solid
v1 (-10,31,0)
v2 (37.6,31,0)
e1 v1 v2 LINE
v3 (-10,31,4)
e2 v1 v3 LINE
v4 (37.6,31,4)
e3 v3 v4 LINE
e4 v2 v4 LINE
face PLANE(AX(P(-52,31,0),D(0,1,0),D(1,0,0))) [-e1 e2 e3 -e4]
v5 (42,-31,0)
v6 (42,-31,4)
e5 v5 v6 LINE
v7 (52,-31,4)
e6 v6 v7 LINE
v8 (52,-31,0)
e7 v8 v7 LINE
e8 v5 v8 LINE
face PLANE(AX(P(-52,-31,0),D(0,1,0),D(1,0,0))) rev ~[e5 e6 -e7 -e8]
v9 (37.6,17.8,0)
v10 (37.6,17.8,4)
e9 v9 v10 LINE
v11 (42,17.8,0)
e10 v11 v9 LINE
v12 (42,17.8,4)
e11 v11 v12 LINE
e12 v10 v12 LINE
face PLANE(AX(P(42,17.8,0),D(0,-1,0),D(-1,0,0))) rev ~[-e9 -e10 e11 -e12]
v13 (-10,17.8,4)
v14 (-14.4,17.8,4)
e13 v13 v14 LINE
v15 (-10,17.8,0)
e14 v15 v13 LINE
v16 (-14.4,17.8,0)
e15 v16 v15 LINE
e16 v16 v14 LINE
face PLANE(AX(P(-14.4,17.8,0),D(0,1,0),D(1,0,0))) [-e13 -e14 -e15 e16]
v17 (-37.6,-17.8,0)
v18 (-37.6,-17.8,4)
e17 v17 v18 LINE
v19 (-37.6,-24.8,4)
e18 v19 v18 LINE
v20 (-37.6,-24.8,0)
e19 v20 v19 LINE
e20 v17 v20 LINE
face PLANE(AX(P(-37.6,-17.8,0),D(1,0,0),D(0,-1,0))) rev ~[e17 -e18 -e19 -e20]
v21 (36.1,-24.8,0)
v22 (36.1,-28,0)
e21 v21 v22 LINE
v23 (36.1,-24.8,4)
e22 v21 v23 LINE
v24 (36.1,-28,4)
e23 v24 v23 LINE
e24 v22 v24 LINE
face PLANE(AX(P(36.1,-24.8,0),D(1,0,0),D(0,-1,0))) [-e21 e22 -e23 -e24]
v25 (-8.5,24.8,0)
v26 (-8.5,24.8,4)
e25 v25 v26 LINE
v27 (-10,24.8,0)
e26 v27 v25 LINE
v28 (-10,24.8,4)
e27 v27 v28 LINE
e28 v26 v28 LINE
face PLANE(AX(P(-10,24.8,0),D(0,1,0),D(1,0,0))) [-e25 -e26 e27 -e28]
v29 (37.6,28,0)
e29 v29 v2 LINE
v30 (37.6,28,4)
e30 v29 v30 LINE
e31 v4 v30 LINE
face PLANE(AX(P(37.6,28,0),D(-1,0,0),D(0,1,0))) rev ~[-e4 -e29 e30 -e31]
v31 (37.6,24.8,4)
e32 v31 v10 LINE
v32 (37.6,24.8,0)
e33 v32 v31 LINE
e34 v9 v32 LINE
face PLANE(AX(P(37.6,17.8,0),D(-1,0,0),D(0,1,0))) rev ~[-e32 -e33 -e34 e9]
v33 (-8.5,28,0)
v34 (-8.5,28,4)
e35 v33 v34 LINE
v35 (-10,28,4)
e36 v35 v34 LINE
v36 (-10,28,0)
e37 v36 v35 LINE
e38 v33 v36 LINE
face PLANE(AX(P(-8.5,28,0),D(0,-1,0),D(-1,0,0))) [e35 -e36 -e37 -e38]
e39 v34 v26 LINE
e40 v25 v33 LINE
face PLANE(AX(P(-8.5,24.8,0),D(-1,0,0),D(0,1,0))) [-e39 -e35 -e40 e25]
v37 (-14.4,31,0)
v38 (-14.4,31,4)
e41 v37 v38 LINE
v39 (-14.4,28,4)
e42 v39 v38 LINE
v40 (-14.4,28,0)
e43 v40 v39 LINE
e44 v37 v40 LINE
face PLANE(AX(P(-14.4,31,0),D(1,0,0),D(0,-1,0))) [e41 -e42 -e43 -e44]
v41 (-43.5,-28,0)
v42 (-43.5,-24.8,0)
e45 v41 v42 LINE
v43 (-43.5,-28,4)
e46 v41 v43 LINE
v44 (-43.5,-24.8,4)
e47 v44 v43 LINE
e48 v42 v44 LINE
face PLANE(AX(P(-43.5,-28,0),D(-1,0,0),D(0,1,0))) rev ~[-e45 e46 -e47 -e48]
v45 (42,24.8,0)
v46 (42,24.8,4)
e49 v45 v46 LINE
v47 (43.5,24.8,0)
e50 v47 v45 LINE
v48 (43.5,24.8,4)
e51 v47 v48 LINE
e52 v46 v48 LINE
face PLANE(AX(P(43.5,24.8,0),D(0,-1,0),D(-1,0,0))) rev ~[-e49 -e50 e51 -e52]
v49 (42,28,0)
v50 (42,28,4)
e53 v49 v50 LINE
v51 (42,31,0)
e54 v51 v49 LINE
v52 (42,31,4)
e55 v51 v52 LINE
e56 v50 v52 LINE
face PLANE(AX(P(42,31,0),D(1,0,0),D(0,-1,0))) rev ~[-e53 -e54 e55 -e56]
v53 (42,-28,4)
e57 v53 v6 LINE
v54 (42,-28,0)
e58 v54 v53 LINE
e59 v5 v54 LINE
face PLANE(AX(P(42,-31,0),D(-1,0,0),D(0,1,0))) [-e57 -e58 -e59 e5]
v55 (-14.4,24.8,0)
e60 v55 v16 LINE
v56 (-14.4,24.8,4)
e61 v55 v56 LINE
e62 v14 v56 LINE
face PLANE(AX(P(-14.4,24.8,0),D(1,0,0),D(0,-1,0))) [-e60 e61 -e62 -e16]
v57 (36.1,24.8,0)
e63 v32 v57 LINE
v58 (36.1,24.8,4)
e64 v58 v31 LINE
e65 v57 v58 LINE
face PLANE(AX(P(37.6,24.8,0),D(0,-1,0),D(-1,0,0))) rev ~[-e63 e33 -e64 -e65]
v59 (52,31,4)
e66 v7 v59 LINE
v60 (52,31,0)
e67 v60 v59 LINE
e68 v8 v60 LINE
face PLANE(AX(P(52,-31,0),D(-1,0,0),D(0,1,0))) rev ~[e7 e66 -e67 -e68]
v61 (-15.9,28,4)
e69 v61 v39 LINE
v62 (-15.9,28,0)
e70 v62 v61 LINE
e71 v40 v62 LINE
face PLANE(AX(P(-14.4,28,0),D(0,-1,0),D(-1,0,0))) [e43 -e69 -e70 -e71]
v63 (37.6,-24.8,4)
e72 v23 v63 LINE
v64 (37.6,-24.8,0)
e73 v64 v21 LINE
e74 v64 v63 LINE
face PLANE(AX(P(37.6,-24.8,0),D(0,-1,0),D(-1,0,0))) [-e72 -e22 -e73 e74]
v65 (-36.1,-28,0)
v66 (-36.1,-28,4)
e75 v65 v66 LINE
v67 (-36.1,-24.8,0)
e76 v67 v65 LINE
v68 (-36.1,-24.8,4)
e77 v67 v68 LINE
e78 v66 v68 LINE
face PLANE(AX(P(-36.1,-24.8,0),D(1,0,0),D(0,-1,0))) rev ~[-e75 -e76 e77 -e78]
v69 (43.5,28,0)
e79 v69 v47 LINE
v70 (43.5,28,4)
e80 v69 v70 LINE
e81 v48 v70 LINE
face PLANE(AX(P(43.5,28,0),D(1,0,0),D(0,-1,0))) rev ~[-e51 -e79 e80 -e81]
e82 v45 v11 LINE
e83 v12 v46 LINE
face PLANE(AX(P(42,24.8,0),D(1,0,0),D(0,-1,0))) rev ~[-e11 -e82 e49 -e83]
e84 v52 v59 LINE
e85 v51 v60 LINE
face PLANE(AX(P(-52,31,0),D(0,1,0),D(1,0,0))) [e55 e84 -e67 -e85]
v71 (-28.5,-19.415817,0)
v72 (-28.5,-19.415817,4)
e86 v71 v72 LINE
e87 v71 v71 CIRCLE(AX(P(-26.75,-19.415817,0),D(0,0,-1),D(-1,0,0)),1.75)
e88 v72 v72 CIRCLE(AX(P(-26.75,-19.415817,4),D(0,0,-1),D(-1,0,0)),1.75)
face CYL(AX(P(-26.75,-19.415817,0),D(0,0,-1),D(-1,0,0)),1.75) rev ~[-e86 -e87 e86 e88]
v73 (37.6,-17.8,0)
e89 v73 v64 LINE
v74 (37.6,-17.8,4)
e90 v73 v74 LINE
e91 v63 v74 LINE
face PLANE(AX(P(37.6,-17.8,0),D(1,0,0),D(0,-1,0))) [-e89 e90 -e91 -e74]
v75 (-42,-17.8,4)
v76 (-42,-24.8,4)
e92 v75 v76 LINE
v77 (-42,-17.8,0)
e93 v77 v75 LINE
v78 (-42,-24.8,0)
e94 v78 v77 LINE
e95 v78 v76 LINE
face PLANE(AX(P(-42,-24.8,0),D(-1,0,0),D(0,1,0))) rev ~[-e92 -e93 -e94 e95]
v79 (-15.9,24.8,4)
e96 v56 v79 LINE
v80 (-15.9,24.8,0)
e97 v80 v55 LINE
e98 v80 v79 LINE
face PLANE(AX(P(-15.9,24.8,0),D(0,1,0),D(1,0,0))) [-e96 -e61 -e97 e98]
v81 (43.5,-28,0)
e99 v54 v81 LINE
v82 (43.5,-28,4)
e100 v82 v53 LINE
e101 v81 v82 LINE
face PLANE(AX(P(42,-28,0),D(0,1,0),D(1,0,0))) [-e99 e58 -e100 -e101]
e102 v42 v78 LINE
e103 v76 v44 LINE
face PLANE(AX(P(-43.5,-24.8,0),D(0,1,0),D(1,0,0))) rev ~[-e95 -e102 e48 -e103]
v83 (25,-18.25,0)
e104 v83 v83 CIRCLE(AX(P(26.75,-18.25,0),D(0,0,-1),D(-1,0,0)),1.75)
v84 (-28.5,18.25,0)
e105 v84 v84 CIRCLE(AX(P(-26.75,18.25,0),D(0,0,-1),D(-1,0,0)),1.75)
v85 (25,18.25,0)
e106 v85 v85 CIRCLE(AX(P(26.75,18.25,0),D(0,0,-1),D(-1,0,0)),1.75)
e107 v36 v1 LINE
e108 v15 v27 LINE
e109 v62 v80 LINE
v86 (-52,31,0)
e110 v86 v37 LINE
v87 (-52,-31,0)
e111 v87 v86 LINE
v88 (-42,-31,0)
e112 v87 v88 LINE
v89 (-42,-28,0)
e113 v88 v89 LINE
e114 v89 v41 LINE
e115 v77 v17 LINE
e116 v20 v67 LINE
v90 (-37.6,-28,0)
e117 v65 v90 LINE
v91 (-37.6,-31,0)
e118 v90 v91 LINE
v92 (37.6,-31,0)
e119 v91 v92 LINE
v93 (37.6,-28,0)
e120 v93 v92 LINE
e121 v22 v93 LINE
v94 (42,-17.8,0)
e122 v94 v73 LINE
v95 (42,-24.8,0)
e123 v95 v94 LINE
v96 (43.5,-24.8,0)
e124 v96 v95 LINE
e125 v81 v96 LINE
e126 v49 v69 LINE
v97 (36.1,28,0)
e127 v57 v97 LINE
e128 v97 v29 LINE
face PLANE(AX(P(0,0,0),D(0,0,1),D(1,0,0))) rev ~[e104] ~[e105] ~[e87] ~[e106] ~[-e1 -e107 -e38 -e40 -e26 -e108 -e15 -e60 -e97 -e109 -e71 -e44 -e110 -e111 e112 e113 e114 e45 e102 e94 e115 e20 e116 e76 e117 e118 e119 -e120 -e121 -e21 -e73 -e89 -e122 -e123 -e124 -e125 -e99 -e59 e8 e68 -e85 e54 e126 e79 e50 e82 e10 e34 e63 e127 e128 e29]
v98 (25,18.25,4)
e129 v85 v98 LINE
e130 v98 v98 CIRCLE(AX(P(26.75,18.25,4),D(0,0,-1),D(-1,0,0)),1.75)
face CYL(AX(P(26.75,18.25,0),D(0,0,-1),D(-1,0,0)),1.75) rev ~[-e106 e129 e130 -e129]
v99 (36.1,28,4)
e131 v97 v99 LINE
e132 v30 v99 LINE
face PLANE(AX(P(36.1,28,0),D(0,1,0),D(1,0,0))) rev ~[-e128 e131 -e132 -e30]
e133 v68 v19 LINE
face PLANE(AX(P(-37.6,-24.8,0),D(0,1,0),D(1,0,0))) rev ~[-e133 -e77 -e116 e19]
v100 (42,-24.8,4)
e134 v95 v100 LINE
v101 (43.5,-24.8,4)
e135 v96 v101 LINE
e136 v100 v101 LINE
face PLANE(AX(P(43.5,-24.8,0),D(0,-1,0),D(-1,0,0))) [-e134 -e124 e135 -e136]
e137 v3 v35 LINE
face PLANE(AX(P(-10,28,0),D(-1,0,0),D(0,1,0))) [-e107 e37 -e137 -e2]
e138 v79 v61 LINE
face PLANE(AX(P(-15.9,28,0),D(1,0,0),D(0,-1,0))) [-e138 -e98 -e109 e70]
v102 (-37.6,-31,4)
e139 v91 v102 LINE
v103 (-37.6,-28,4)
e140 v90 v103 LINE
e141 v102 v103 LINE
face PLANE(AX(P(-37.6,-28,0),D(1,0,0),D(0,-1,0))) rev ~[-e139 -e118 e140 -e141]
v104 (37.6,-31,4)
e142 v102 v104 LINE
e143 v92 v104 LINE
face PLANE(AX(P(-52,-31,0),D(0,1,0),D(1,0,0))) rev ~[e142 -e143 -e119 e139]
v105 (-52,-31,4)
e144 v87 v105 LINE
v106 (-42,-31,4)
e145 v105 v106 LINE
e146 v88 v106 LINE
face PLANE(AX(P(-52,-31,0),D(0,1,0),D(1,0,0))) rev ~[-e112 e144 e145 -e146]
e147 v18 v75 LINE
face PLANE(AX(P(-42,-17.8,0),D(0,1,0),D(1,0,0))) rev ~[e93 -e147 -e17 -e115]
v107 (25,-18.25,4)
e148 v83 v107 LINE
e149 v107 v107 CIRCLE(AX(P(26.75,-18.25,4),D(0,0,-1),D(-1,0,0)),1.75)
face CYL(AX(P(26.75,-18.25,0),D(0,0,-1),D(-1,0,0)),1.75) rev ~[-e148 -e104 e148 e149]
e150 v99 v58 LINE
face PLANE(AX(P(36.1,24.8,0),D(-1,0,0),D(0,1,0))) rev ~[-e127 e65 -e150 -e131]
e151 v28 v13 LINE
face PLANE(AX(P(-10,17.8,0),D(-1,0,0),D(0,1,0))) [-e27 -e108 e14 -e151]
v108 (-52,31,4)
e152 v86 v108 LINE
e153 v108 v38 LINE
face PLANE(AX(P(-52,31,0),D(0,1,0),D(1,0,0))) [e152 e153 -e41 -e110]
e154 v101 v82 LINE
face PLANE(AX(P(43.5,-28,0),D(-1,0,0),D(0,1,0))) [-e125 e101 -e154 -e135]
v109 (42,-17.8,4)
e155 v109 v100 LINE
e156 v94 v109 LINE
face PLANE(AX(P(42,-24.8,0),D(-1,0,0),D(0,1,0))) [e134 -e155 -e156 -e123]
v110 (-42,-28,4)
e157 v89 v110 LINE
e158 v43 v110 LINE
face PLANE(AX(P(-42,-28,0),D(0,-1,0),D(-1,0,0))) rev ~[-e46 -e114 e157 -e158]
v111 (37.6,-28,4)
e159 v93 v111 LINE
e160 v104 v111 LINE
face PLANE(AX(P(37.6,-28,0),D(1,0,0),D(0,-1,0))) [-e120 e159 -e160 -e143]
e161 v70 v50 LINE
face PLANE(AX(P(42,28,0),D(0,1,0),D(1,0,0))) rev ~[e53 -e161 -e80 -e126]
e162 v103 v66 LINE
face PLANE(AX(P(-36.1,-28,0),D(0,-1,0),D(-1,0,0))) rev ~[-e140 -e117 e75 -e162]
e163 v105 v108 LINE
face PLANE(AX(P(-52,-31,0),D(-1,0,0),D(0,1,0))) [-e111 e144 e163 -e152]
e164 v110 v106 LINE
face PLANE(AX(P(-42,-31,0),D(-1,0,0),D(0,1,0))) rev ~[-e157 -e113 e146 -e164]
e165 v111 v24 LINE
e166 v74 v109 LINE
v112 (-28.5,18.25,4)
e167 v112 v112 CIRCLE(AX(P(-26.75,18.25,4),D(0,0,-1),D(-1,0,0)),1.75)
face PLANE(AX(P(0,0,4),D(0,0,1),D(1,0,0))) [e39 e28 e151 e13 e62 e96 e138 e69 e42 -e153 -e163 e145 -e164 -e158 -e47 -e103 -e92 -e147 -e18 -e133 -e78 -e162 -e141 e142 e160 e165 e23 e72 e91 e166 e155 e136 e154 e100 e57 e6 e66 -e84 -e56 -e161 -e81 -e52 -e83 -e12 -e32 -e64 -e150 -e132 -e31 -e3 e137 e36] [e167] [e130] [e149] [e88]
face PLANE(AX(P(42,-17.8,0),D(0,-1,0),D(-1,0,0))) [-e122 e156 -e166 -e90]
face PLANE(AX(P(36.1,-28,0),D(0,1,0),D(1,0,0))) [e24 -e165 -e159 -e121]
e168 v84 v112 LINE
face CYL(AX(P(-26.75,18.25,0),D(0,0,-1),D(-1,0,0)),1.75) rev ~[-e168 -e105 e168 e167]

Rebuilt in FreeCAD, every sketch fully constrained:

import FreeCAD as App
import Part
import Sketcher
from FreeCAD import Vector
Q = App.Units.Quantity


def add_polygon(sketch, points):
    """Adds a closed chain of lines whose ends are joined by coincident constraints."""
    first, n = sketch.GeometryCount, len(points)
    for a, b in zip(points, points[1:] + points[:1]):
        sketch.addGeometry(Part.LineSegment(App.Vector(*a, 0), App.Vector(*b, 0)), False)
    for i in range(n):
        sketch.addConstraint(Sketcher.Constraint("Coincident", first + i, 2, first + (i + 1) % n, 1))

doc = App.newDocument("Part")
body = doc.addObject("PartDesign::Body", "Body")

# Sketch on XY plane
sketch1 = body.newObject("Sketcher::SketchObject", "Sketch")
sketch1.AttachmentSupport = (doc.getObject("XY_Plane"), [""])
sketch1.MapMode = "FlatFace"
add_polygon(sketch1, [(-52, 31), (-52, -31), (52, -31), (52, 31)])  # lines 0-3
sketch1.addConstraint(Sketcher.Constraint("Vertical", 0))
sketch1.addConstraint(Sketcher.Constraint("Horizontal", 1))
sketch1.addConstraint(Sketcher.Constraint("Vertical", 2))
sketch1.addConstraint(Sketcher.Constraint("Horizontal", 3))
sketch1.addConstraint(Sketcher.Constraint("Symmetric", 0, 2, 2, 2, -1, 1))
sketch1.addConstraint(Sketcher.Constraint("DistanceX", 1, 1, 1, 2, Q("104 mm")))
sketch1.addConstraint(Sketcher.Constraint("DistanceY", 0, 2, 0, 1, Q("62 mm")))
pad1 = body.newObject("PartDesign::Pad", "Pad")
pad1.Profile = sketch1
pad1.Length = 4

# Sketch on XY plane
sketch2 = body.newObject("Sketcher::SketchObject", "Sketch001")
sketch2.AttachmentSupport = (doc.getObject("XY_Plane"), [""])
sketch2.MapMode = "FlatFace"
add_polygon(sketch2, [(37.6, -31), (37.6, -28), (36.1, -28), (36.1, -24.8), (37.6, -24.8), (37.6, -17.8), (42, -17.8), (42, -24.8), (43.5, -24.8), (43.5, -28), (42, -28), (42, -31)])  # lines 0-11
add_polygon(sketch2, [(-42, -31), (-42, -28), (-43.5, -28), (-43.5, -24.8), (-42, -24.8), (-42, -17.8), (-37.6, -17.8), (-37.6, -24.8), (-36.1, -24.8), (-36.1, -28), (-37.6, -28), (-37.6, -31)])  # lines 12-23
add_polygon(sketch2, [(42, 31), (42, 28), (43.5, 28), (43.5, 24.8), (42, 24.8), (42, 17.8), (37.6, 17.8), (37.6, 24.8), (36.1, 24.8), (36.1, 28), (37.6, 28), (37.6, 31)])  # lines 24-35
add_polygon(sketch2, [(-14.4, 17.8), (-14.4, 24.8), (-15.9, 24.8), (-15.9, 28), (-14.4, 28), (-14.4, 31), (-10, 31), (-10, 28), (-8.5, 28), (-8.5, 24.8), (-10, 24.8), (-10, 17.8)])  # lines 36-47
sketch2.addConstraint(Sketcher.Constraint("Vertical", 0))
sketch2.addConstraint(Sketcher.Constraint("Horizontal", 1))
sketch2.addConstraint(Sketcher.Constraint("Vertical", 2))
sketch2.addConstraint(Sketcher.Constraint("Horizontal", 3))
sketch2.addConstraint(Sketcher.Constraint("Vertical", 4))
sketch2.addConstraint(Sketcher.Constraint("Horizontal", 5))
sketch2.addConstraint(Sketcher.Constraint("Vertical", 6))
sketch2.addConstraint(Sketcher.Constraint("Horizontal", 7))
sketch2.addConstraint(Sketcher.Constraint("Vertical", 8))
sketch2.addConstraint(Sketcher.Constraint("Horizontal", 9))
sketch2.addConstraint(Sketcher.Constraint("Vertical", 10))
sketch2.addConstraint(Sketcher.Constraint("Horizontal", 11))
sketch2.addConstraint(Sketcher.Constraint("Vertical", 12))
sketch2.addConstraint(Sketcher.Constraint("Horizontal", 13))
sketch2.addConstraint(Sketcher.Constraint("Vertical", 14))
sketch2.addConstraint(Sketcher.Constraint("Horizontal", 15))
sketch2.addConstraint(Sketcher.Constraint("Vertical", 16))
sketch2.addConstraint(Sketcher.Constraint("Horizontal", 17))
sketch2.addConstraint(Sketcher.Constraint("Vertical", 18))
sketch2.addConstraint(Sketcher.Constraint("Horizontal", 19))
sketch2.addConstraint(Sketcher.Constraint("Vertical", 20))
sketch2.addConstraint(Sketcher.Constraint("Horizontal", 21))
sketch2.addConstraint(Sketcher.Constraint("Vertical", 22))
sketch2.addConstraint(Sketcher.Constraint("Horizontal", 23))
sketch2.addConstraint(Sketcher.Constraint("Vertical", 24))
sketch2.addConstraint(Sketcher.Constraint("Horizontal", 25))
sketch2.addConstraint(Sketcher.Constraint("Vertical", 26))
sketch2.addConstraint(Sketcher.Constraint("Horizontal", 27))
sketch2.addConstraint(Sketcher.Constraint("Vertical", 28))
sketch2.addConstraint(Sketcher.Constraint("Horizontal", 29))
sketch2.addConstraint(Sketcher.Constraint("Vertical", 30))
sketch2.addConstraint(Sketcher.Constraint("Horizontal", 31))
sketch2.addConstraint(Sketcher.Constraint("Vertical", 32))
sketch2.addConstraint(Sketcher.Constraint("Horizontal", 33))
sketch2.addConstraint(Sketcher.Constraint("Vertical", 34))
sketch2.addConstraint(Sketcher.Constraint("Horizontal", 35))
sketch2.addConstraint(Sketcher.Constraint("Vertical", 36))
sketch2.addConstraint(Sketcher.Constraint("Horizontal", 37))
sketch2.addConstraint(Sketcher.Constraint("Vertical", 38))
sketch2.addConstraint(Sketcher.Constraint("Horizontal", 39))
sketch2.addConstraint(Sketcher.Constraint("Vertical", 40))
sketch2.addConstraint(Sketcher.Constraint("Horizontal", 41))
sketch2.addConstraint(Sketcher.Constraint("Vertical", 42))
sketch2.addConstraint(Sketcher.Constraint("Horizontal", 43))
sketch2.addConstraint(Sketcher.Constraint("Vertical", 44))
sketch2.addConstraint(Sketcher.Constraint("Horizontal", 45))
sketch2.addConstraint(Sketcher.Constraint("Vertical", 46))
sketch2.addConstraint(Sketcher.Constraint("Horizontal", 47))
sketch2.addConstraint(Sketcher.Constraint("Symmetric", 12, 2, 24, 2, -1, 1))
sketch2.addConstraint(Sketcher.Constraint("Symmetric", 14, 2, 26, 2, -1, 1))
sketch2.addConstraint(Sketcher.Constraint("Symmetric", 16, 2, 28, 2, -1, 1))
sketch2.addConstraint(Sketcher.Constraint("Symmetric", 18, 2, 30, 2, -1, 1))
sketch2.addConstraint(Sketcher.Constraint("Symmetric", 20, 2, 32, 2, -1, 1))
sketch2.addConstraint(Sketcher.Constraint("Symmetric", 22, 2, 34, 2, -1, 1))
sketch2.addConstraint(Sketcher.Constraint("Symmetric", 9, 2, 12, 2, -2))
sketch2.addConstraint(Sketcher.Constraint("Symmetric", 7, 2, 14, 2, -2))
sketch2.addConstraint(Sketcher.Constraint("Symmetric", 5, 2, 16, 2, -2))
sketch2.addConstraint(Sketcher.Constraint("Symmetric", 3, 2, 18, 2, -2))
sketch2.addConstraint(Sketcher.Constraint("Symmetric", 1, 2, 20, 2, -2))
sketch2.addConstraint(Sketcher.Constraint("Symmetric", 11, 2, 22, 2, -2))
sketch2.addConstraint(Sketcher.Constraint("Horizontal", 3, 2, 6, 2))
sketch2.addConstraint(Sketcher.Constraint("Horizontal", 1, 2, 8, 2))
sketch2.addConstraint(Sketcher.Constraint("Horizontal", 31, 2, 36, 2))
sketch2.addConstraint(Sketcher.Constraint("Horizontal", 33, 2, 38, 2))
sketch2.addConstraint(Sketcher.Constraint("Horizontal", 35, 2, 40, 2))
sketch2.addConstraint(Sketcher.Constraint("Horizontal", 39, 2, 42, 2))
sketch2.addConstraint(Sketcher.Constraint("Horizontal", 37, 2, 44, 2))
sketch2.addConstraint(Sketcher.Constraint("Horizontal", 29, 2, 46, 2))
sketch2.addConstraint(Sketcher.Constraint("Vertical", 0, 2, 3, 2))
sketch2.addConstraint(Sketcher.Constraint("Vertical", 6, 2, 9, 2))
sketch2.addConstraint(Sketcher.Constraint("Vertical", 36, 2, 39, 2))
sketch2.addConstraint(Sketcher.Constraint("Vertical", 42, 2, 45, 2))
sketch2.addConstraint(Sketcher.Constraint("Equal", 3, 7))
sketch2.addConstraint(Sketcher.Constraint("Equal", 33, 37))
sketch2.addConstraint(Sketcher.Constraint("Equal", 35, 41))
sketch2.addConstraint(Sketcher.Constraint("Equal", 39, 43))
sketch2.addConstraint(Sketcher.Constraint("DistanceY", 0, 1, 0, 2, Q("3 mm")))
sketch2.addConstraint(Sketcher.Constraint("DistanceY", 4, 1, 4, 2, Q("7 mm")))
sketch2.addConstraint(Sketcher.Constraint("DistanceX", 1, 2, 1, 1, Q("1.5 mm")))
sketch2.addConstraint(Sketcher.Constraint("DistanceX", 5, 1, 5, 2, Q("4.4 mm")))
sketch2.addConstraint(Sketcher.Constraint("DistanceY", 2, 1, 2, 2, Q("3.2 mm")))
sketch2.addConstraint(Sketcher.Constraint("DistanceY", 0, 2, -1, 1, Q("28 mm")))
sketch2.addConstraint(Sketcher.Constraint("DistanceX", -1, 1, 5, 2, Q("42 mm")))
sketch2.addConstraint(Sketcher.Constraint("DistanceX", 41, 2, -1, 1, Q("10 mm")))
pocket1 = body.newObject("PartDesign::Pocket", "Pocket")
pocket1.Profile = sketch2
pocket1.Length = 10
pocket1.Reversed = True

# Sketch on XY plane
sketch3 = body.newObject("Sketcher::SketchObject", "Sketch002")
sketch3.AttachmentSupport = (doc.getObject("XY_Plane"), [""])
sketch3.MapMode = "FlatFace"
sketch3.addGeometry(Part.Circle(Vector(26.8, 18.2, 0), Vector(0, 0, 1), 1.8), False)
sketch3.addGeometry(Part.Circle(Vector(26.8, -18.2, 0), Vector(0, 0, 1), 1.8), False)
sketch3.addGeometry(Part.Circle(Vector(-26.8, 18.2, 0), Vector(0, 0, 1), 1.8), False)
sketch3.addGeometry(Part.Circle(Vector(-26.8, -19.4, 0), Vector(0, 0, 1), 1.8), False)
sketch3.addConstraint(Sketcher.Constraint("Equal", 0, 1))
sketch3.addConstraint(Sketcher.Constraint("Equal", 1, 2))
sketch3.addConstraint(Sketcher.Constraint("Equal", 2, 3))
sketch3.addConstraint(Sketcher.Constraint("Symmetric", 1, 3, 2, 3, -1, 1))
sketch3.addConstraint(Sketcher.Constraint("Symmetric", 0, 3, 2, 3, -2))
sketch3.addConstraint(Sketcher.Constraint("Vertical", 2, 3, 3, 3))
sketch3.addConstraint(Sketcher.Constraint("Diameter", 0, Q("3.5 mm")))
sketch3.addConstraint(Sketcher.Constraint("DistanceY", 1, 3, 0, 3, Q("36.5 mm")))
sketch3.addConstraint(Sketcher.Constraint("DistanceX", 2, 3, 0, 3, Q("53.5 mm")))
sketch3.addConstraint(Sketcher.Constraint("DistanceY", 3, 3, -1, 1, Q("19.415817 mm")))
pocket2 = body.newObject("PartDesign::Pocket", "Pocket001")
pocket2.Profile = sketch3
pocket2.Length = 10
pocket2.Reversed = True

doc.recompute()
